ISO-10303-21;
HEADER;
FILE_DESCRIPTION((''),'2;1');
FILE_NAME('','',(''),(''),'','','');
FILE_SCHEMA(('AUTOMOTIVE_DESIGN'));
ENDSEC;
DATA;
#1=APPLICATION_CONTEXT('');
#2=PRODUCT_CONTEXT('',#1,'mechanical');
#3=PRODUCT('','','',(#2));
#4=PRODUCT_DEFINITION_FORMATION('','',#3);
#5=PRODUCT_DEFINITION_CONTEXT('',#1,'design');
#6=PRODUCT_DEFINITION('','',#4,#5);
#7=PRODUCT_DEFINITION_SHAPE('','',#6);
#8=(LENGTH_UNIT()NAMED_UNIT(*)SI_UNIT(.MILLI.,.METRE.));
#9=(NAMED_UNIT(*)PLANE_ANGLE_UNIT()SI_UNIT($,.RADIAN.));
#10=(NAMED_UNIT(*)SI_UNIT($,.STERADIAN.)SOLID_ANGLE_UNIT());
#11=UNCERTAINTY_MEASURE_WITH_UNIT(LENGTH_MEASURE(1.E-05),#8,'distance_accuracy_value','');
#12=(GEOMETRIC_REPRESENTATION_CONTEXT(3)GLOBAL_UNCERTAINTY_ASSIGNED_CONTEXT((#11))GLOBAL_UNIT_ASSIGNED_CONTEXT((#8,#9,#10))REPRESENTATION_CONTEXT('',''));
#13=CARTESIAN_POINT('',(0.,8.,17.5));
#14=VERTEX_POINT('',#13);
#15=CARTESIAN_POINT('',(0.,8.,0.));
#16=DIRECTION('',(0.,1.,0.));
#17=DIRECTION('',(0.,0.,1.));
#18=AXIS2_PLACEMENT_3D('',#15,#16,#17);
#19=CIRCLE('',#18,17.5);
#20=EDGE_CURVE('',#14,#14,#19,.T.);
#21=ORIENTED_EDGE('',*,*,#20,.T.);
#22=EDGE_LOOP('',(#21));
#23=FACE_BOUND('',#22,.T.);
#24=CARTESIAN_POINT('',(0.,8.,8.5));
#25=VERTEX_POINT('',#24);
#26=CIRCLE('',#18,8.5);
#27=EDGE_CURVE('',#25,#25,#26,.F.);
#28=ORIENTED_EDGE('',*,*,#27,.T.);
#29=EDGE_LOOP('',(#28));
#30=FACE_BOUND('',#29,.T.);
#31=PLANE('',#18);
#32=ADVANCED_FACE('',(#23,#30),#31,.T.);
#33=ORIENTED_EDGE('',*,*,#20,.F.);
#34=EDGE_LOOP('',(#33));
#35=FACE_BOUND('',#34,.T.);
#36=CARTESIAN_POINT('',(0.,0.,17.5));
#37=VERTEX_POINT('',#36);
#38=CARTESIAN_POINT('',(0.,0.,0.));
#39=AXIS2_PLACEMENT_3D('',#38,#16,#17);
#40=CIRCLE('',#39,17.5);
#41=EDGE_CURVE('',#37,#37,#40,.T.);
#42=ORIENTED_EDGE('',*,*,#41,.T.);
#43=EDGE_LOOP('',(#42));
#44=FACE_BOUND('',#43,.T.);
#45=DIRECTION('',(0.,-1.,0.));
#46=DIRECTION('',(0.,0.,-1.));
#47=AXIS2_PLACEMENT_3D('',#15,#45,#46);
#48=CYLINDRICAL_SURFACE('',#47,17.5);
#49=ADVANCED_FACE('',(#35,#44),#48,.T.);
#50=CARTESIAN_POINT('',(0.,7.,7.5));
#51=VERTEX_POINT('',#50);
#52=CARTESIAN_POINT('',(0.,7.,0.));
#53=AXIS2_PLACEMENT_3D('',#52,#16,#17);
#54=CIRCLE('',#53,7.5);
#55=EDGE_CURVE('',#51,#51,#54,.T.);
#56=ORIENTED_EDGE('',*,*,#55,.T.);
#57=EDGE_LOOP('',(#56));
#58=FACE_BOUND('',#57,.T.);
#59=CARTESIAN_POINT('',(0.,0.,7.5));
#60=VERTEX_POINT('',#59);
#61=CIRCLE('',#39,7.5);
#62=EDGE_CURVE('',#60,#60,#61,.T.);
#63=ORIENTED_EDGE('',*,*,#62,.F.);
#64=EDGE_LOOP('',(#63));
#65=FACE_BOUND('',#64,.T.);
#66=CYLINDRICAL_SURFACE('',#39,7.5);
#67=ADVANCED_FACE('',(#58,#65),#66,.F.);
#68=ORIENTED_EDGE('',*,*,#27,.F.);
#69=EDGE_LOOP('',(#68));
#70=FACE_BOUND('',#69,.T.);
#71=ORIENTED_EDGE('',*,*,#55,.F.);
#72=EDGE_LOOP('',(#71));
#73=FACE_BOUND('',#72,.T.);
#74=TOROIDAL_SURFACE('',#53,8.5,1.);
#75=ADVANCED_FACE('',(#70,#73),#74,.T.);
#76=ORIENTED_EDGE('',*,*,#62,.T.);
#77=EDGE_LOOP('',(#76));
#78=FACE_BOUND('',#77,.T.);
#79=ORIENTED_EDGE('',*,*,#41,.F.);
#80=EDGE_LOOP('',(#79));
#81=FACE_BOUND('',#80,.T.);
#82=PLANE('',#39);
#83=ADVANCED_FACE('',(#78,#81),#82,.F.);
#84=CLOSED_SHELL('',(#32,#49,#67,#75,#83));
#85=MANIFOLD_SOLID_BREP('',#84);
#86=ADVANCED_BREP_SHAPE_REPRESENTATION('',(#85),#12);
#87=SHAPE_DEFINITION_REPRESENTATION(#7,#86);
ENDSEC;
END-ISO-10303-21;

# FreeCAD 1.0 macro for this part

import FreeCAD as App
import Part
import Sketcher

V = App.Vector


def edges_at(feature, points):
    """Names of the edges that pass closest to the given points."""
    edges = feature.Shape.Edges
    near = lambda p: min(range(len(edges)), key=lambda i: edges[i].distToShape(Part.Vertex(*p))[0])
    return sorted({f"Edge{near(p) + 1}" for p in points})

doc = App.newDocument("Part")
body = doc.addObject("PartDesign::Body", "Body")

# Sketch on XZ plane
sketch1 = body.newObject("Sketcher::SketchObject", "Sketch")
sketch1.AttachmentSupport = (doc.getObject("XZ_Plane"), [""])
sketch1.MapMode = "FlatFace"
sketch1.addGeometry(Part.Circle(V(0, 0, 0), V(0, 0, 1), 17.5), False)
sketch1.addConstraint(Sketcher.Constraint("Coincident", 0, 3, -1, 1))
sketch1.addConstraint(Sketcher.Constraint("Diameter", 0, 35.0))
pad1 = body.newObject("PartDesign::Pad", "Pad")
pad1.Profile = sketch1
pad1.Length = 8
pad1.Reversed = True

# Sketch on XZ plane
sketch2 = body.newObject("Sketcher::SketchObject", "Sketch001")
sketch2.AttachmentSupport = (doc.getObject("XZ_Plane"), [""])
sketch2.MapMode = "FlatFace"
sketch2.AttachmentOffset = App.Placement(V(0, 0, -8), App.Rotation())
sketch2.addGeometry(Part.Circle(V(0, 0, 0), V(0, 0, 1), 7.5), False)
sketch2.addConstraint(Sketcher.Constraint("Coincident", 0, 3, -1, 1))
sketch2.addConstraint(Sketcher.Constraint("Diameter", 0, 15.0))
pocket1 = body.newObject("PartDesign::Pocket", "Pocket")
pocket1.Profile = sketch2
pocket1.Type = "ThroughAll"
pocket1.Reversed = True
doc.recompute()

fillet = body.newObject("PartDesign::Fillet", "Fillet")
fillet.Base = (pocket1, edges_at(pocket1, [(-7.5, 8, 0)]))
fillet.Radius = 1

doc.recompute()
